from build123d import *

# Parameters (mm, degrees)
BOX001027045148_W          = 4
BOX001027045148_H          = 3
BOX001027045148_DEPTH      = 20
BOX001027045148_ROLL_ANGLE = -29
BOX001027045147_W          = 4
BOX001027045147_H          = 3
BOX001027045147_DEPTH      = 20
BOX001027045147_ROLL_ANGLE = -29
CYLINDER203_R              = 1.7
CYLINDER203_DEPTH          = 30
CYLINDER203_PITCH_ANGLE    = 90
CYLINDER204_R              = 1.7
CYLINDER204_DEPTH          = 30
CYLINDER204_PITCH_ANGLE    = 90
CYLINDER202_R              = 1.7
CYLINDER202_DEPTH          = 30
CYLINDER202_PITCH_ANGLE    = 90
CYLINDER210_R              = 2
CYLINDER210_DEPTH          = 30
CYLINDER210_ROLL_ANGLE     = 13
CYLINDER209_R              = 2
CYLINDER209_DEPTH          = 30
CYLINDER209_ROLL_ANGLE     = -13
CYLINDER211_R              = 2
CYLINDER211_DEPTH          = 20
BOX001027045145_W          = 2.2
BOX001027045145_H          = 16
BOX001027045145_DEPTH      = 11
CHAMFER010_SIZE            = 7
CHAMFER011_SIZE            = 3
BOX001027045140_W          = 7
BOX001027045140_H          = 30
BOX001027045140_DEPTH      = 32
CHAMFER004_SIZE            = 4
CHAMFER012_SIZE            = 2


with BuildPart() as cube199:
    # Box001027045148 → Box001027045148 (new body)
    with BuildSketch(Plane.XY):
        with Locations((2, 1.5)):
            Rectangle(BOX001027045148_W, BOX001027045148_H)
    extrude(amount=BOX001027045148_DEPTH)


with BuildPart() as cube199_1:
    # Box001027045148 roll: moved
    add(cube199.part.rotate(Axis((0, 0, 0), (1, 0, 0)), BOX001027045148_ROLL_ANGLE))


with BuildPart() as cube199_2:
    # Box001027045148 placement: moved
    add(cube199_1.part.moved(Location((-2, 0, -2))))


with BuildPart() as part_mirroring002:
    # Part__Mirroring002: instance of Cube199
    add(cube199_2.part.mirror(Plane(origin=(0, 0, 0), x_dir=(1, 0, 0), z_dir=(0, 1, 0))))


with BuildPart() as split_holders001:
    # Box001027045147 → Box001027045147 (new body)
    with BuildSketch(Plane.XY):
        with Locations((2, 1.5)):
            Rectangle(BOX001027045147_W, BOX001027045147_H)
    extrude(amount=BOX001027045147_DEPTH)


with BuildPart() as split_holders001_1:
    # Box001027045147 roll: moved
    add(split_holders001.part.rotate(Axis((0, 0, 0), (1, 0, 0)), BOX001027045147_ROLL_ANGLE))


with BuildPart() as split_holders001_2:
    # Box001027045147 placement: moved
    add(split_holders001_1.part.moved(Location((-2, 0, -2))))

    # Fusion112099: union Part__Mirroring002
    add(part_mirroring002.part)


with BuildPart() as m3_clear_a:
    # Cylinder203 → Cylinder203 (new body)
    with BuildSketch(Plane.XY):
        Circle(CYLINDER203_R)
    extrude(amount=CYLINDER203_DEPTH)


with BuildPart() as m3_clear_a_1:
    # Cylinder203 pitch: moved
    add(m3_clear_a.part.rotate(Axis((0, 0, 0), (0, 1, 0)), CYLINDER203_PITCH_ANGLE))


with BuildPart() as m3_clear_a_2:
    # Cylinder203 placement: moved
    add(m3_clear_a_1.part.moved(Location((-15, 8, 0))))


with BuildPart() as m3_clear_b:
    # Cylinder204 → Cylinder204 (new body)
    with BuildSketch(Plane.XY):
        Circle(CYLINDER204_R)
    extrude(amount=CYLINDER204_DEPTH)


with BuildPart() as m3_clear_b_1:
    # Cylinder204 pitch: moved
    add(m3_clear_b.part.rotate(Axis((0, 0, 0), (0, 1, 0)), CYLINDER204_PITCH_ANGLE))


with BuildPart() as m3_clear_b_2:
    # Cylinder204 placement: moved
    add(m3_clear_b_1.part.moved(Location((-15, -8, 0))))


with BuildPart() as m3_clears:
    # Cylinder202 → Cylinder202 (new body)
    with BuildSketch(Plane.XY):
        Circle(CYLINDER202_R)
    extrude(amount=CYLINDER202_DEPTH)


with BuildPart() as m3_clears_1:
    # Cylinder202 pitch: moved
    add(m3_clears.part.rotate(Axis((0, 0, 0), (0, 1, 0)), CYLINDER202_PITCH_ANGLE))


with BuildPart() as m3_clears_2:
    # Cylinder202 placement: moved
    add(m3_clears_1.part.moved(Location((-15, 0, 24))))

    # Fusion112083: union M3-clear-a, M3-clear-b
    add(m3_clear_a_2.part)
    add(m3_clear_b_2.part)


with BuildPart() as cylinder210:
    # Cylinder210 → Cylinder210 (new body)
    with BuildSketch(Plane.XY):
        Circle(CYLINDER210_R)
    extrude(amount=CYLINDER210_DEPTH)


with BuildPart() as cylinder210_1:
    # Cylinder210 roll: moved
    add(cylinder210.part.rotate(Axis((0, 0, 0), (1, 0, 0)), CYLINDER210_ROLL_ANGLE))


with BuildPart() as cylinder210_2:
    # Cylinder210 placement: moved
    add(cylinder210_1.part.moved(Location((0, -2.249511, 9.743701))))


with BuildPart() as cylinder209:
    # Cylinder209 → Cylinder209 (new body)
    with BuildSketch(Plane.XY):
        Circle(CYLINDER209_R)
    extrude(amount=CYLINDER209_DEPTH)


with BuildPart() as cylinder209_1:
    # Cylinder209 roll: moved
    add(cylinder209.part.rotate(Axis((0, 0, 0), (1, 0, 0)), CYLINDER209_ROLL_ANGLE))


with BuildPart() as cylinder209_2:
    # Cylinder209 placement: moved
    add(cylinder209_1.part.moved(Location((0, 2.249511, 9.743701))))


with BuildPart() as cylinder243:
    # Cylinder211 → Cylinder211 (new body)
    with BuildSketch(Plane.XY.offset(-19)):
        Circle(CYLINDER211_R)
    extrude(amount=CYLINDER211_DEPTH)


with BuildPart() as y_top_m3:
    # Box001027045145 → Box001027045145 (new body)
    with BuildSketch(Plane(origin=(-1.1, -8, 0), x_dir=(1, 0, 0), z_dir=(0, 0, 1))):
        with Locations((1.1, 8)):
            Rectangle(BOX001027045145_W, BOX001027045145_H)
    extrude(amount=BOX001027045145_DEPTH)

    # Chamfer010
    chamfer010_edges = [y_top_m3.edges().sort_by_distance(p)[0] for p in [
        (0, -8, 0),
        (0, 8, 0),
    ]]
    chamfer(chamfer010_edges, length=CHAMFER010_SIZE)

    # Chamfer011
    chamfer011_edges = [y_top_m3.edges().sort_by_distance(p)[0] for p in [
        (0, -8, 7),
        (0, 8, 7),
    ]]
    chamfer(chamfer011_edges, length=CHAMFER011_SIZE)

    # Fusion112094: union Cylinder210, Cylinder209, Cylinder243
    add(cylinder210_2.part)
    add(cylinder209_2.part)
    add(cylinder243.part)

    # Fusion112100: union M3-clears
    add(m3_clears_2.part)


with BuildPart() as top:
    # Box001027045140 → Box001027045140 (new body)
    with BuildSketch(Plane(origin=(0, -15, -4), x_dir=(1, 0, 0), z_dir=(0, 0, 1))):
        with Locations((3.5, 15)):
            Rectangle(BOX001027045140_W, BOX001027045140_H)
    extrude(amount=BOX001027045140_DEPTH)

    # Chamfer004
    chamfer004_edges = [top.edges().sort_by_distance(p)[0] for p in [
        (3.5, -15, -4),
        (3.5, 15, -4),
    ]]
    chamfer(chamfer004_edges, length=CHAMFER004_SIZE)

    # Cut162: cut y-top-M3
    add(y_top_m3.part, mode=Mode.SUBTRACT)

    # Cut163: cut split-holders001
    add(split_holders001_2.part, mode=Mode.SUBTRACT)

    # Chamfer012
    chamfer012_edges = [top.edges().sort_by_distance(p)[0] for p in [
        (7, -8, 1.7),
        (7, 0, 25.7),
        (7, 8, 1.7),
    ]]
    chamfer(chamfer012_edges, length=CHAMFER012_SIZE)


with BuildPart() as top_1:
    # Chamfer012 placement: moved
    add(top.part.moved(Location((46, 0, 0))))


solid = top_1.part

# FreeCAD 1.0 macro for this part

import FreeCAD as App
import Part
import Sketcher
from FreeCAD import Vector
Q = App.Units.Quantity


def edges_at(feature, points):
    """Names of the edges that pass closest to the given points."""
    edges = feature.Shape.Edges
    near = lambda p: min(range(len(edges)), key=lambda i: edges[i].distToShape(Part.Vertex(*p))[0])
    return sorted({f"Edge{near(p) + 1}" for p in points})

doc = App.newDocument("Part")
body = doc.addObject("PartDesign::Body", "Body")

sketch1 = body.newObject("Sketcher::SketchObject", "Sketch")
sketch1.AttachmentSupport = (doc.getObject("XY_Plane"), [""])
sketch1.MapMode = "FlatFace"
sketch1.addGeometry([
    Part.LineSegment(Vector(0, 3, 0), Vector(0, 0, 0)),
    Part.LineSegment(Vector(0, 0, 0), Vector(4, 0, 0)),
    Part.LineSegment(Vector(4, 0, 0), Vector(4, 3, 0)),
    Part.LineSegment(Vector(4, 3, 0), Vector(0, 3, 0)),
], False)
sketch1.addConstraint([
    Sketcher.Constraint("Coincident", 0, 2, 1, 1),
    Sketcher.Constraint("Coincident", 1, 2, 2, 1),
    Sketcher.Constraint("Coincident", 2, 2, 3, 1),
    Sketcher.Constraint("Coincident", 3, 2, 0, 1),
    Sketcher.Constraint("Vertical", 0),
    Sketcher.Constraint("Horizontal", 1),
    Sketcher.Constraint("Vertical", 2),
    Sketcher.Constraint("Horizontal", 3),
    Sketcher.Constraint("Coincident", 0, 2, -1, 1),
    Sketcher.Constraint("DistanceX", 1, 1, 1, 2, Q("4 mm")),
    Sketcher.Constraint("DistanceY", 0, 2, 0, 1, Q("3 mm")),
])
pad1 = body.newObject("PartDesign::Pad", "Pad")
pad1.Profile = sketch1
pad1.Length = 20
body2 = doc.addObject("PartDesign::Body", "Body001")
doc.recompute()

body.Placement = App.Placement(Vector(0, 0, 0), App.Rotation(Vector(1, 0, 0), 331))
boolean = body2.newObject("PartDesign::Boolean", "Boolean")
boolean.Type = "Fuse"
boolean.addObjects([body])
body3 = doc.addObject("PartDesign::Body", "Body002")
doc.recompute()

body2.Placement = App.Placement(Vector(-2, 0, -2), App.Rotation(Vector(0, 0, 1), 0))
boolean2 = body3.newObject("PartDesign::Boolean", "Boolean001")
boolean2.Type = "Fuse"
boolean2.addObjects([body2])
body4 = doc.addObject("PartDesign::Body", "Body003")
doc.recompute()

mirroring = doc.addObject("Part::Mirroring", "Mirroring")
mirroring.Source = body3
mirroring.Base = Vector(0, 0, 0)
mirroring.Normal = Vector(0, 1, 0)
body4.BaseFeature = mirroring
doc.recompute()
body5 = doc.addObject("PartDesign::Body", "Body004")

sketch2 = body5.newObject("Sketcher::SketchObject", "Sketch001")
sketch2.AttachmentSupport = (doc.getObject("XY_Plane004"), [""])
sketch2.MapMode = "FlatFace"
sketch2.addGeometry([
    Part.LineSegment(Vector(0, 3, 0), Vector(0, 0, 0)),
    Part.LineSegment(Vector(0, 0, 0), Vector(4, 0, 0)),
    Part.LineSegment(Vector(4, 0, 0), Vector(4, 3, 0)),
    Part.LineSegment(Vector(4, 3, 0), Vector(0, 3, 0)),
], False)
sketch2.addConstraint([
    Sketcher.Constraint("Coincident", 0, 2, 1, 1),
    Sketcher.Constraint("Coincident", 1, 2, 2, 1),
    Sketcher.Constraint("Coincident", 2, 2, 3, 1),
    Sketcher.Constraint("Coincident", 3, 2, 0, 1),
    Sketcher.Constraint("Vertical", 0),
    Sketcher.Constraint("Horizontal", 1),
    Sketcher.Constraint("Vertical", 2),
    Sketcher.Constraint("Horizontal", 3),
    Sketcher.Constraint("Coincident", 0, 2, -1, 1),
    Sketcher.Constraint("DistanceX", 1, 1, 1, 2, Q("4 mm")),
    Sketcher.Constraint("DistanceY", 0, 2, 0, 1, Q("3 mm")),
])
pad2 = body5.newObject("PartDesign::Pad", "Pad001")
pad2.Profile = sketch2
pad2.Length = 20
body6 = doc.addObject("PartDesign::Body", "Body005")
doc.recompute()

body5.Placement = App.Placement(Vector(0, 0, 0), App.Rotation(Vector(1, 0, 0), 331))
boolean3 = body6.newObject("PartDesign::Boolean", "Boolean002")
boolean3.Type = "Fuse"
boolean3.addObjects([body5])
body7 = doc.addObject("PartDesign::Body", "Body006")
body7.AllowCompound = True
doc.recompute()

body6.Placement = App.Placement(Vector(-2, 0, -2), App.Rotation(Vector(0, 0, 1), 0))
boolean4 = body7.newObject("PartDesign::Boolean", "Boolean003")
boolean4.Type = "Fuse"
boolean4.addObjects([body6])
doc.recompute()

boolean5 = body7.newObject("PartDesign::Boolean", "Boolean004")
boolean5.Type = "Fuse"
boolean5.addObjects([body4])
body8 = doc.addObject("PartDesign::Body", "Body007")

sketch3 = body8.newObject("Sketcher::SketchObject", "Sketch002")
sketch3.AttachmentSupport = (doc.getObject("XY_Plane007"), [""])
sketch3.MapMode = "FlatFace"
sketch3.addGeometry(Part.Circle(Vector(0, 0, 0), Vector(0, 0, 1), 1.7), False)
sketch3.addConstraint([
    Sketcher.Constraint("Coincident", 0, 3, -1, 1),
    Sketcher.Constraint("Diameter", 0, Q("3.4 mm")),
])
pad3 = body8.newObject("PartDesign::Pad", "Pad002")
pad3.Profile = sketch3
pad3.Length = 30
body9 = doc.addObject("PartDesign::Body", "Body008")
doc.recompute()

body8.Placement = App.Placement(Vector(0, 0, 0), App.Rotation(Vector(0, 1, 0), 90))
boolean6 = body9.newObject("PartDesign::Boolean", "Boolean005")
boolean6.Type = "Fuse"
boolean6.addObjects([body8])
body10 = doc.addObject("PartDesign::Body", "Body009")
doc.recompute()

body9.Placement = App.Placement(Vector(-15, 8, 0), App.Rotation(Vector(0, 0, 1), 0))
boolean7 = body10.newObject("PartDesign::Boolean", "Boolean006")
boolean7.Type = "Fuse"
boolean7.addObjects([body9])
body11 = doc.addObject("PartDesign::Body", "Body010")

sketch4 = body11.newObject("Sketcher::SketchObject", "Sketch003")
sketch4.AttachmentSupport = (doc.getObject("XY_Plane010"), [""])
sketch4.MapMode = "FlatFace"
sketch4.addGeometry(Part.Circle(Vector(0, 0, 0), Vector(0, 0, 1), 1.7), False)
sketch4.addConstraint([
    Sketcher.Constraint("Coincident", 0, 3, -1, 1),
    Sketcher.Constraint("Diameter", 0, Q("3.4 mm")),
])
pad4 = body11.newObject("PartDesign::Pad", "Pad003")
pad4.Profile = sketch4
pad4.Length = 30
body12 = doc.addObject("PartDesign::Body", "Body011")
doc.recompute()

body11.Placement = App.Placement(Vector(0, 0, 0), App.Rotation(Vector(0, 1, 0), 90))
boolean8 = body12.newObject("PartDesign::Boolean", "Boolean007")
boolean8.Type = "Fuse"
boolean8.addObjects([body11])
body13 = doc.addObject("PartDesign::Body", "Body012")
doc.recompute()

body12.Placement = App.Placement(Vector(-15, -8, 0), App.Rotation(Vector(0, 0, 1), 0))
boolean9 = body13.newObject("PartDesign::Boolean", "Boolean008")
boolean9.Type = "Fuse"
boolean9.addObjects([body12])
body14 = doc.addObject("PartDesign::Body", "Body013")

sketch5 = body14.newObject("Sketcher::SketchObject", "Sketch004")
sketch5.AttachmentSupport = (doc.getObject("XY_Plane013"), [""])
sketch5.MapMode = "FlatFace"
sketch5.addGeometry(Part.Circle(Vector(0, 0, 0), Vector(0, 0, 1), 1.7), False)
sketch5.addConstraint([
    Sketcher.Constraint("Coincident", 0, 3, -1, 1),
    Sketcher.Constraint("Diameter", 0, Q("3.4 mm")),
])
pad5 = body14.newObject("PartDesign::Pad", "Pad004")
pad5.Profile = sketch5
pad5.Length = 30
body15 = doc.addObject("PartDesign::Body", "Body014")
doc.recompute()

body14.Placement = App.Placement(Vector(0, 0, 0), App.Rotation(Vector(0, 1, 0), 90))
boolean10 = body15.newObject("PartDesign::Boolean", "Boolean009")
boolean10.Type = "Fuse"
boolean10.addObjects([body14])
body16 = doc.addObject("PartDesign::Body", "Body015")
body16.AllowCompound = True
doc.recompute()

body15.Placement = App.Placement(Vector(-15, 0, 24), App.Rotation(Vector(0, 0, 1), 0))
boolean11 = body16.newObject("PartDesign::Boolean", "Boolean010")
boolean11.Type = "Fuse"
boolean11.addObjects([body15])
doc.recompute()

boolean12 = body16.newObject("PartDesign::Boolean", "Boolean011")
boolean12.Type = "Fuse"
boolean12.addObjects([body10])
doc.recompute()

boolean13 = body16.newObject("PartDesign::Boolean", "Boolean012")
boolean13.Type = "Fuse"
boolean13.addObjects([body13])
body17 = doc.addObject("PartDesign::Body", "Body016")

sketch6 = body17.newObject("Sketcher::SketchObject", "Sketch005")
sketch6.AttachmentSupport = (doc.getObject("XY_Plane016"), [""])
sketch6.MapMode = "FlatFace"
sketch6.addGeometry(Part.Circle(Vector(0, 0, 0), Vector(0, 0, 1), 2), False)
sketch6.addConstraint([
    Sketcher.Constraint("Coincident", 0, 3, -1, 1),
    Sketcher.Constraint("Diameter", 0, Q("4 mm")),
])
pad6 = body17.newObject("PartDesign::Pad", "Pad005")
pad6.Profile = sketch6
pad6.Length = 30
body18 = doc.addObject("PartDesign::Body", "Body017")
doc.recompute()

body17.Placement = App.Placement(Vector(0, 0, 0), App.Rotation(Vector(1, 0, 0), 13))
boolean14 = body18.newObject("PartDesign::Boolean", "Boolean013")
boolean14.Type = "Fuse"
boolean14.addObjects([body17])
body19 = doc.addObject("PartDesign::Body", "Body018")
doc.recompute()

body18.Placement = App.Placement(Vector(0, -2.249511, 9.743701), App.Rotation(Vector(0, 0, 1), 0))
boolean15 = body19.newObject("PartDesign::Boolean", "Boolean014")
boolean15.Type = "Fuse"
boolean15.addObjects([body18])
body20 = doc.addObject("PartDesign::Body", "Body019")

sketch7 = body20.newObject("Sketcher::SketchObject", "Sketch006")
sketch7.AttachmentSupport = (doc.getObject("XY_Plane019"), [""])
sketch7.MapMode = "FlatFace"
sketch7.addGeometry(Part.Circle(Vector(0, 0, 0), Vector(0, 0, 1), 2), False)
sketch7.addConstraint([
    Sketcher.Constraint("Coincident", 0, 3, -1, 1),
    Sketcher.Constraint("Diameter", 0, Q("4 mm")),
])
pad7 = body20.newObject("PartDesign::Pad", "Pad006")
pad7.Profile = sketch7
pad7.Length = 30
body21 = doc.addObject("PartDesign::Body", "Body020")
doc.recompute()

body20.Placement = App.Placement(Vector(0, 0, 0), App.Rotation(Vector(1, 0, 0), 347))
boolean16 = body21.newObject("PartDesign::Boolean", "Boolean015")
boolean16.Type = "Fuse"
boolean16.addObjects([body20])
body22 = doc.addObject("PartDesign::Body", "Body021")
doc.recompute()

body21.Placement = App.Placement(Vector(0, 2.249511, 9.743701), App.Rotation(Vector(0, 0, 1), 0))
boolean17 = body22.newObject("PartDesign::Boolean", "Boolean016")
boolean17.Type = "Fuse"
boolean17.addObjects([body21])
body23 = doc.addObject("PartDesign::Body", "Body022")

sketch8 = body23.newObject("Sketcher::SketchObject", "Sketch007")
sketch8.AttachmentSupport = (doc.getObject("XY_Plane022"), [""])
sketch8.MapMode = "FlatFace"
sketch8.AttachmentOffset = App.Placement(Vector(0, 0, -19), App.Rotation())
sketch8.addGeometry(Part.Circle(Vector(0, 0, 0), Vector(0, 0, 1), 2), False)
sketch8.addConstraint([
    Sketcher.Constraint("Coincident", 0, 3, -1, 1),
    Sketcher.Constraint("Diameter", 0, Q("4 mm")),
])
pad8 = body23.newObject("PartDesign::Pad", "Pad007")
pad8.Profile = sketch8
pad8.Length = 20
body24 = doc.addObject("PartDesign::Body", "Body023")
body24.AllowCompound = True

sketch9 = body24.newObject("Sketcher::SketchObject", "Sketch008")
sketch9.AttachmentSupport = (doc.getObject("XY_Plane023"), [""])
sketch9.MapMode = "FlatFace"
sketch9.addGeometry([
    Part.LineSegment(Vector(-1.1, 8, 0), Vector(-1.1, -8, 0)),
    Part.LineSegment(Vector(-1.1, -8, 0), Vector(1.1, -8, 0)),
    Part.LineSegment(Vector(1.1, -8, 0), Vector(1.1, 8, 0)),
    Part.LineSegment(Vector(1.1, 8, 0), Vector(-1.1, 8, 0)),
], False)
sketch9.addConstraint([
    Sketcher.Constraint("Coincident", 0, 2, 1, 1),
    Sketcher.Constraint("Coincident", 1, 2, 2, 1),
    Sketcher.Constraint("Coincident", 2, 2, 3, 1),
    Sketcher.Constraint("Coincident", 3, 2, 0, 1),
    Sketcher.Constraint("Vertical", 0),
    Sketcher.Constraint("Horizontal", 1),
    Sketcher.Constraint("Vertical", 2),
    Sketcher.Constraint("Horizontal", 3),
    Sketcher.Constraint("Symmetric", 0, 2, 2, 2, -1, 1),
    Sketcher.Constraint("DistanceY", 0, 2, 0, 1, Q("16 mm")),
    Sketcher.Constraint("DistanceX", 1, 1, 1, 2, Q("2.2 mm")),
])
pad9 = body24.newObject("PartDesign::Pad", "Pad008")
pad9.Profile = sketch9
pad9.Length = 11
doc.recompute()

chamfer = body24.newObject("PartDesign::Chamfer", "Chamfer")
chamfer.Base = (pad9, edges_at(pad9, [(0, -8, 0), (0, 8, 0)]))
chamfer.Size = 7
doc.recompute()

chamfer2 = body24.newObject("PartDesign::Chamfer", "Chamfer001")
chamfer2.Base = (chamfer, edges_at(chamfer, [(0, -8, 7), (0, 8, 7)]))
chamfer2.Size = 3
doc.recompute()

boolean18 = body24.newObject("PartDesign::Boolean", "Boolean017")
boolean18.Type = "Fuse"
boolean18.addObjects([body19])
doc.recompute()

boolean19 = body24.newObject("PartDesign::Boolean", "Boolean018")
boolean19.Type = "Fuse"
boolean19.addObjects([body22])
doc.recompute()

boolean20 = body24.newObject("PartDesign::Boolean", "Boolean019")
boolean20.Type = "Fuse"
boolean20.addObjects([body23])
doc.recompute()

boolean21 = body24.newObject("PartDesign::Boolean", "Boolean020")
boolean21.Type = "Fuse"
boolean21.addObjects([body16])
body25 = doc.addObject("PartDesign::Body", "Body024")

sketch10 = body25.newObject("Sketcher::SketchObject", "Sketch009")
sketch10.AttachmentSupport = (doc.getObject("XY_Plane024"), [""])
sketch10.MapMode = "FlatFace"
sketch10.AttachmentOffset = App.Placement(Vector(0, 0, -4), App.Rotation())
sketch10.addGeometry([
    Part.LineSegment(Vector(0, 15, 0), Vector(0, -15, 0)),
    Part.LineSegment(Vector(0, -15, 0), Vector(7, -15, 0)),
    Part.LineSegment(Vector(7, -15, 0), Vector(7, 15, 0)),
    Part.LineSegment(Vector(7, 15, 0), Vector(0, 15, 0)),
], False)
sketch10.addConstraint([
    Sketcher.Constraint("Coincident", 0, 2, 1, 1),
    Sketcher.Constraint("Coincident", 1, 2, 2, 1),
    Sketcher.Constraint("Coincident", 2, 2, 3, 1),
    Sketcher.Constraint("Coincident", 3, 2, 0, 1),
    Sketcher.Constraint("Vertical", 0),
    Sketcher.Constraint("Horizontal", 1),
    Sketcher.Constraint("Vertical", 2),
    Sketcher.Constraint("Horizontal", 3),
    Sketcher.Constraint("Symmetric", 0, 2, 3, 2, -1, 1),
    Sketcher.Constraint("DistanceX", 1, 1, 1, 2, Q("7 mm")),
    Sketcher.Constraint("DistanceY", 0, 2, 0, 1, Q("30 mm")),
])
pad10 = body25.newObject("PartDesign::Pad", "Pad009")
pad10.Profile = sketch10
pad10.Length = 32
doc.recompute()

chamfer3 = body25.newObject("PartDesign::Chamfer", "Chamfer002")
chamfer3.Base = (pad10, edges_at(pad10, [(3.5, -15, -4), (3.5, 15, -4)]))
chamfer3.Size = 4
doc.recompute()

boolean22 = body25.newObject("PartDesign::Boolean", "Boolean021")
boolean22.Type = "Cut"
boolean22.addObjects([body24])
doc.recompute()

boolean23 = body25.newObject("PartDesign::Boolean", "Boolean022")
boolean23.Type = "Cut"
boolean23.addObjects([body7])
doc.recompute()

chamfer4 = body25.newObject("PartDesign::Chamfer", "Chamfer003")
chamfer4.Base = (boolean23, edges_at(boolean23, [(7, -8, 1.7), (7, 0, 25.7), (7, 8, 1.7)]))
chamfer4.Size = 2
body26 = doc.addObject("PartDesign::Body", "Body025")
doc.recompute()

body25.Placement = App.Placement(Vector(46, 0, 0), App.Rotation(Vector(0, 0, 1), 0))
boolean24 = body26.newObject("PartDesign::Boolean", "Boolean023")
boolean24.Type = "Fuse"
boolean24.addObjects([body25])
mirroring.Visibility = False

doc.recompute()
